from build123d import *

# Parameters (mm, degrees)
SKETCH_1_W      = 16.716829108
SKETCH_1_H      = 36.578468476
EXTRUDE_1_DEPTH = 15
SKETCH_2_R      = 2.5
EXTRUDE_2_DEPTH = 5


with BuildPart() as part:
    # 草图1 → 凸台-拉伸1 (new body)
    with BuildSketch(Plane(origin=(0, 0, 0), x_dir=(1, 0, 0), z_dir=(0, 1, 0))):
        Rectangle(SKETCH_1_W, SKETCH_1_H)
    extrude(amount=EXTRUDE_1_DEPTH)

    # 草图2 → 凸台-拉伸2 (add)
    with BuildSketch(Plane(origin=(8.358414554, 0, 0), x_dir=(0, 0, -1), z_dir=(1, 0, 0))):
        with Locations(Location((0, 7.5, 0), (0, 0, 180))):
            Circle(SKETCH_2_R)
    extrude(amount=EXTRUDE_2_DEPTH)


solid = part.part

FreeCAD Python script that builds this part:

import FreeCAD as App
import Part
import Sketcher

doc = App.newDocument("Part")
params = doc.addObject("Spreadsheet::Sheet", "Params")
for row, (alias, value) in enumerate([
    ("pad1_length", "15 mm"),
    ("sketch2_diameter", "5 mm"),
    ("pad2_length", "5 mm"),
], start=1):
    params.set(f"A{row}", alias)
    params.set(f"B{row}", "=" + value)
    params.setAlias(f"B{row}", alias)

body = doc.addObject("PartDesign::Body", "Body")

# Sketch on XZ plane
sketch1 = body.newObject("Sketcher::SketchObject", "Sketch")
sketch1.AttachmentSupport = (doc.getObject("XZ_Plane"), [""])
sketch1.MapMode = "FlatFace"
sketch1.addGeometry([
    Part.LineSegment(App.Vector(-8.358415, -18.289234, 0), App.Vector(-8.358415, 18.289234, 0)),
    Part.LineSegment(App.Vector(-8.358415, 18.289234, 0), App.Vector(8.358415, 18.289234, 0)),
    Part.LineSegment(App.Vector(8.358415, 18.289234, 0), App.Vector(8.358415, -18.289234, 0)),
    Part.LineSegment(App.Vector(8.358415, -18.289234, 0), App.Vector(-8.358415, -18.289234, 0)),
], False)
sketch1.addConstraint([
    Sketcher.Constraint("Coincident", 0, 2, 1, 1),
    Sketcher.Constraint("Coincident", 1, 2, 2, 1),
    Sketcher.Constraint("Coincident", 2, 2, 3, 1),
    Sketcher.Constraint("Coincident", 3, 2, 0, 1),
    Sketcher.Constraint("Vertical", 0),
    Sketcher.Constraint("Horizontal", 1),
    Sketcher.Constraint("Vertical", 2),
    Sketcher.Constraint("Horizontal", 3),
    Sketcher.Constraint("Symmetric", 0, 2, 2, 2, -1, 1),
    Sketcher.Constraint("DistanceX", 1, 1, 1, 2, 16.716829),
    Sketcher.Constraint("DistanceY", 0, 1, 0, 2, 36.578468),
])
pad1 = body.newObject("PartDesign::Pad", "Pad")
pad1.Profile = sketch1
pad1.setExpression("Length", "Params.pad1_length")
pad1.Reversed = True

# Sketch on YZ plane
sketch2 = body.newObject("Sketcher::SketchObject", "Sketch001")
sketch2.AttachmentSupport = (doc.getObject("YZ_Plane"), [""])
sketch2.MapMode = "FlatFace"
sketch2.AttachmentOffset = App.Placement(App.Vector(0, 0, 8.358415), App.Rotation())
sketch2.addGeometry(Part.Circle(App.Vector(7.5, 0, 0), App.Vector(0, 0, 1), 2.5), False)
sketch2.addConstraint([
    Sketcher.Constraint("PointOnObject", 0, 3, -1),
    Sketcher.Constraint("Diameter", 0, 5.0),
    Sketcher.Constraint("DistanceX", -1, 1, 0, 3, 7.5),
])
sketch2.setExpression("Constraints[1]", "Params.sketch2_diameter")
pad2 = body.newObject("PartDesign::Pad", "Pad001")
pad2.Profile = sketch2
pad2.setExpression("Length", "Params.pad2_length")

doc.recompute()
